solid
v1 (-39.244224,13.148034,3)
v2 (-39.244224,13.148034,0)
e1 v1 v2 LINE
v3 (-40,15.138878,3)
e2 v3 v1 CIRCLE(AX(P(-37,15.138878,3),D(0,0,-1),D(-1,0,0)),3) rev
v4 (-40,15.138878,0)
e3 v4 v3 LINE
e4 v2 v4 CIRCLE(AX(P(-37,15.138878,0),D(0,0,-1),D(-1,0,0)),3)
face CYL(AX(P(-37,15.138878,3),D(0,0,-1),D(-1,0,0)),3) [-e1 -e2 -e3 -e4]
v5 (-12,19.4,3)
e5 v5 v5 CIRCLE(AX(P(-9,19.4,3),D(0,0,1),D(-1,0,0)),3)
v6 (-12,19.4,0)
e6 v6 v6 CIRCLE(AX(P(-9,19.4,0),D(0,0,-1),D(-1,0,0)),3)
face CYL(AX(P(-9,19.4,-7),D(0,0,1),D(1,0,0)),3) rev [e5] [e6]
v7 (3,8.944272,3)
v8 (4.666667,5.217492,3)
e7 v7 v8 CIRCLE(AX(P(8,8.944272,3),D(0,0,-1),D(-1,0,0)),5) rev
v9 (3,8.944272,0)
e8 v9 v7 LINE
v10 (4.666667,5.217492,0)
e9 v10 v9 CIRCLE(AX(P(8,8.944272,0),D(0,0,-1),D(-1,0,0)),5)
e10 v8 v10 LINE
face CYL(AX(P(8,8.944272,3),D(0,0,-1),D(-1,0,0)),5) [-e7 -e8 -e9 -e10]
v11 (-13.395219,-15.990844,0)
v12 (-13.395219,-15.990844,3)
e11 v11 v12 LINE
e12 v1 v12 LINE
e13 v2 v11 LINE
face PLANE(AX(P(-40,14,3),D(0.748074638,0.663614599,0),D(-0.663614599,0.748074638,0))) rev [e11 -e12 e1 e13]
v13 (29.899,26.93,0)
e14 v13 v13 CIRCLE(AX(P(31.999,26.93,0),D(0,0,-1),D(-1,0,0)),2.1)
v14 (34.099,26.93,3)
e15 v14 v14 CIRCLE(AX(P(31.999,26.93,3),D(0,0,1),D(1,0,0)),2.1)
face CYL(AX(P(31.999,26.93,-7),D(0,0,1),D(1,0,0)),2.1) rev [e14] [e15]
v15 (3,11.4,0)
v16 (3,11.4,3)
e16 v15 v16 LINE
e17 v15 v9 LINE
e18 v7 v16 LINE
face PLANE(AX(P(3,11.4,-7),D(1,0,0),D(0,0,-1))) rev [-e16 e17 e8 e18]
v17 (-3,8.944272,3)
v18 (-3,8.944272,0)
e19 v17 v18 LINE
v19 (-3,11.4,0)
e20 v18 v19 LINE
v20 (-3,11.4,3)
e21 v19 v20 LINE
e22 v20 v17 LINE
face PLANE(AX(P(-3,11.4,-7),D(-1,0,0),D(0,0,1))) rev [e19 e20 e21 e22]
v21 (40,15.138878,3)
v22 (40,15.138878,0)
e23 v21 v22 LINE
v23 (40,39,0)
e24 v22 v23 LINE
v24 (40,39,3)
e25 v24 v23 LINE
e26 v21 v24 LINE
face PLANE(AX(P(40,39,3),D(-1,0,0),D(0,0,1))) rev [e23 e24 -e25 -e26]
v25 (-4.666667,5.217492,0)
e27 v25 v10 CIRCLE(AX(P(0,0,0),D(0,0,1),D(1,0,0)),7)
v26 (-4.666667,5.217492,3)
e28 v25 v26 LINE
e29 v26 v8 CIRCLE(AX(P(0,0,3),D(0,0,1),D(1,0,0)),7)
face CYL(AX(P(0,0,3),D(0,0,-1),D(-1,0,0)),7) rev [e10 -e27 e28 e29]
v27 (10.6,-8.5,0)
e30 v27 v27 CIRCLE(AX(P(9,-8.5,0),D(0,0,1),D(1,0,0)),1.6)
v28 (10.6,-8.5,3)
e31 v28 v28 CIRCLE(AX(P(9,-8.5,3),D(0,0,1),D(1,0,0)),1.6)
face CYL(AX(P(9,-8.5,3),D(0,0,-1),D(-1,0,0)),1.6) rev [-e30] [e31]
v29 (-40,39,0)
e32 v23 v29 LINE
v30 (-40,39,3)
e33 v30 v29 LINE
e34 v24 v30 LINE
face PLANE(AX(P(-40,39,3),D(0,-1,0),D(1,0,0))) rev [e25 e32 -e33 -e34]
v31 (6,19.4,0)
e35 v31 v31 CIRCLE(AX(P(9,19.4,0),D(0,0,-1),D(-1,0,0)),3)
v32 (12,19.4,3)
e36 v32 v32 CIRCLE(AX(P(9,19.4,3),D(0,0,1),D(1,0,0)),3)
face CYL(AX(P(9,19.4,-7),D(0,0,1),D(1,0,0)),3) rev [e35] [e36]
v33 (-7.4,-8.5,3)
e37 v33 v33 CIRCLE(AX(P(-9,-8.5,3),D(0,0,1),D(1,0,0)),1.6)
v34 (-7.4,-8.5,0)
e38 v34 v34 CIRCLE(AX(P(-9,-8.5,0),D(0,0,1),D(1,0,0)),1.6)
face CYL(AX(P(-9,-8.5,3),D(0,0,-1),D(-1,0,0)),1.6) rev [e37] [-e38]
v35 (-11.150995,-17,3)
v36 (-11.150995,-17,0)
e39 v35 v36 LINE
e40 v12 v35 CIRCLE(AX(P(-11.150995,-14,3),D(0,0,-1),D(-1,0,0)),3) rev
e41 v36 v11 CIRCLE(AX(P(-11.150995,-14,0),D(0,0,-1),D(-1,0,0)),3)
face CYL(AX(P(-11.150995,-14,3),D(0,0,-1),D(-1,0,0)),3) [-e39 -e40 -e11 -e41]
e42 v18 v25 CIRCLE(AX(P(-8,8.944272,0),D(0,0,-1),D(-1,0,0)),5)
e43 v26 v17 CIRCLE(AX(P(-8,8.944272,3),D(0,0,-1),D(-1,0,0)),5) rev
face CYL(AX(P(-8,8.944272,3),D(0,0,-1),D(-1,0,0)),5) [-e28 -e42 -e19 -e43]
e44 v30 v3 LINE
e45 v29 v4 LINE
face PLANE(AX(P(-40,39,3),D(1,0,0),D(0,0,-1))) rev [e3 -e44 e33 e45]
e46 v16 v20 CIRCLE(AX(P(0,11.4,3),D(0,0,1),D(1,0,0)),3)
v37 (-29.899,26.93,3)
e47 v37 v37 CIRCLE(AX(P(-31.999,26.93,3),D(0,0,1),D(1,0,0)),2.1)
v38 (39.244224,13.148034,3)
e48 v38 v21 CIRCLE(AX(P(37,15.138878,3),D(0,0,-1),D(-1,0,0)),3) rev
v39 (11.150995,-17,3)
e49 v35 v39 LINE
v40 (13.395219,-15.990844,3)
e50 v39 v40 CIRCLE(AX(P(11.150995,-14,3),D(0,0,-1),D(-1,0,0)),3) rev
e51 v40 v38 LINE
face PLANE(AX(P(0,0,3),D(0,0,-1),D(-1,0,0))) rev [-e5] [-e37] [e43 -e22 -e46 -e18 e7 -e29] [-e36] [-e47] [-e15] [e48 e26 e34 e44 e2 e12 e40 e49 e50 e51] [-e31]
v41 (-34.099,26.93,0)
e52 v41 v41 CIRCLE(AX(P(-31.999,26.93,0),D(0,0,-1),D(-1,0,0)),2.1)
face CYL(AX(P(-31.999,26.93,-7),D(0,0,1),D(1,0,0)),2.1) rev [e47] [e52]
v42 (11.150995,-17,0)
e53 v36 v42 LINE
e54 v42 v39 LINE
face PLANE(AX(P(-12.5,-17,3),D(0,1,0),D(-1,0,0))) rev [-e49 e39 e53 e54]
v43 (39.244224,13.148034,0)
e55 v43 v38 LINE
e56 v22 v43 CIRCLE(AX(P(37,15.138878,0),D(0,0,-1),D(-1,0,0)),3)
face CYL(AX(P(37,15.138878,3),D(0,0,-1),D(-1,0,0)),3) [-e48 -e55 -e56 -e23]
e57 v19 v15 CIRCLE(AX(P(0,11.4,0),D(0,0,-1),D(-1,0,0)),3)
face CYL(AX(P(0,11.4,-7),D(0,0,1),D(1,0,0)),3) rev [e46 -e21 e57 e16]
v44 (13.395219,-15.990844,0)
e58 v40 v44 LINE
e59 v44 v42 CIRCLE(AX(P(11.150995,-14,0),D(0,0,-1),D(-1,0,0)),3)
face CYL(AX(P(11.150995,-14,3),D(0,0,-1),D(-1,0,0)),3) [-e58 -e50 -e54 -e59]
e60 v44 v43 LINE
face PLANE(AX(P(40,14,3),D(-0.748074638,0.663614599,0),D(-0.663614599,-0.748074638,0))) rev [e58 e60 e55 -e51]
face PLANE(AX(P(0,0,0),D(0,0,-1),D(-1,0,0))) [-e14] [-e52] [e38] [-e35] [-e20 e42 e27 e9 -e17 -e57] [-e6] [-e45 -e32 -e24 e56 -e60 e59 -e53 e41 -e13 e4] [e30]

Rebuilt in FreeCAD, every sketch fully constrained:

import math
import FreeCAD as App
import Part
import Sketcher
from FreeCAD import Vector


def edges_at(feature, points):
    """Names of the edges that pass closest to the given points."""
    edges = feature.Shape.Edges
    near = lambda p: min(range(len(edges)), key=lambda i: edges[i].distToShape(Part.Vertex(*p))[0])
    return sorted({f"Edge{near(p) + 1}" for p in points})


def add_polygon(sketch, points):
    """Adds a closed chain of lines whose ends are joined by coincident constraints."""
    first, n = sketch.GeometryCount, len(points)
    for a, b in zip(points, points[1:] + points[:1]):
        sketch.addGeometry(Part.LineSegment(App.Vector(*a, 0), App.Vector(*b, 0)), False)
    for i in range(n):
        sketch.addConstraint(Sketcher.Constraint("Coincident", first + i, 2, first + (i + 1) % n, 1))

doc = App.newDocument("Part")
params = doc.addObject("Spreadsheet::Sheet", "Params")
for row, (alias, value) in enumerate([
    ("sketch1_diameter", "14 mm"),
    ("sketch1_diameter2", "3.2 mm"),
    ("sketch1_width", "25 mm"),
    ("sketch1_width2", "80 mm"),
    ("pad1_length", "3 mm"),
    ("sketch2_diameter", "4.2 mm"),
    ("pocket1_length", "10 mm"),
    ("fillet_radius", "3 mm"),
    ("sketch3_diameter", "6 mm"),
    ("sketch3_radius", "7 mm"),
    ("pocket2_length", "10 mm"),
    ("fillet2_radius", "5 mm"),
], start=1):
    params.set(f"A{row}", alias)
    params.set(f"B{row}", "=" + value)
    params.setAlias(f"B{row}", alias)

body = doc.addObject("PartDesign::Body", "Body")

# Sketch on XY plane
sketch1 = doc.addObject("Sketcher::SketchObject", "Sketch")
body.addObject(sketch1)
sketch1.AttachmentSupport = (doc.XY_Plane, [""])
sketch1.MapMode = "FlatFace"
add_polygon(sketch1, [(-12.5, -17), (12.5, -17), (40, 14), (40, 39), (-40, 39), (-40, 14)])  # lines 0-5
sketch1.addGeometry(Part.Circle(Vector(-9, -8.5, 0), Vector(0, 0, 1), 1.6), False)  # 6
sketch1.addGeometry(Part.Circle(Vector(9, -8.5, 0), Vector(0, 0, 1), 1.6), False)  # 7
sketch1.addGeometry(Part.Circle(Vector(0, 0, 0), Vector(0, 0, 1), 7), False)  # 8
sketch1.addConstraint(Sketcher.Constraint("Horizontal", 0))
sketch1.addConstraint(Sketcher.Constraint("Vertical", 2))
sketch1.addConstraint(Sketcher.Constraint("Horizontal", 3))
sketch1.addConstraint(Sketcher.Constraint("Vertical", 4))
sketch1.addConstraint(Sketcher.Constraint("Coincident", 8, 3, -1, 1))
sketch1.addConstraint(Sketcher.Constraint("Equal", 6, 7))
sketch1.addConstraint(Sketcher.Constraint("Symmetric", 6, 3, 7, 3, -2))
sketch1.addConstraint(Sketcher.Constraint("Symmetric", 1, 2, 4, 2, -2))
sketch1.addConstraint(Sketcher.Constraint("Equal", 0, 2))
sketch1.addConstraint(Sketcher.Constraint("Equal", 1, 5))
sketch1.addConstraint(Sketcher.Constraint("Diameter", 8, 14.0))
sketch1.addConstraint(Sketcher.Constraint("Diameter", 6, 3.2))
sketch1.addConstraint(Sketcher.Constraint("DistanceX", 0, 1, 0, 2, 25.0))
sketch1.addConstraint(Sketcher.Constraint("DistanceX", 3, 2, 3, 1, 80.0))
sketch1.addConstraint(Sketcher.Constraint("DistanceX", 6, 3, -1, 1, 9.0))
sketch1.addConstraint(Sketcher.Constraint("DistanceY", 0, 2, -1, 1, 17.0))
sketch1.addConstraint(Sketcher.Constraint("DistanceY", -1, 1, 1, 2, 14.0))
sketch1.addConstraint(Sketcher.Constraint("DistanceY", 6, 3, -1, 1, 8.5))
sketch1.setExpression("Constraints[16]", "Params.sketch1_diameter")
sketch1.setExpression("Constraints[17]", "Params.sketch1_diameter2")
sketch1.setExpression("Constraints[18]", "Params.sketch1_width")
sketch1.setExpression("Constraints[19]", "Params.sketch1_width2")
pad1 = doc.addObject("PartDesign::Pad", "Pad")
body.addObject(pad1)
pad1.Profile = sketch1
pad1.setExpression("Length", "Params.pad1_length")

# Sketch on XY plane
sketch2 = doc.addObject("Sketcher::SketchObject", "Sketch001")
body.addObject(sketch2)
sketch2.AttachmentSupport = (doc.XY_Plane, [""])
sketch2.MapMode = "FlatFace"
sketch2.AttachmentOffset = App.Placement(Vector(0, 0, 3), App.Rotation())
sketch2.addGeometry(Part.Circle(Vector(32, 26.9, 0), Vector(0, 0, 1), 2.1), False)
sketch2.addGeometry(Part.Circle(Vector(-32, 26.9, 0), Vector(0, 0, 1), 2.1), False)
sketch2.addConstraint(Sketcher.Constraint("Equal", 0, 1))
sketch2.addConstraint(Sketcher.Constraint("Symmetric", 0, 3, 1, 3, -2))
sketch2.addConstraint(Sketcher.Constraint("Diameter", 0, 4.2))
sketch2.addConstraint(Sketcher.Constraint("DistanceY", -1, 1, 0, 3, 26.93))
sketch2.addConstraint(Sketcher.Constraint("DistanceX", -1, 1, 0, 3, 31.999))
sketch2.setExpression("Constraints[2]", "Params.sketch2_diameter")
pocket1 = doc.addObject("PartDesign::Pocket", "Pocket")
body.addObject(pocket1)
pocket1.Profile = sketch2
pocket1.setExpression("Length", "Params.pocket1_length")
doc.recompute()

fillet = doc.addObject("PartDesign::Fillet", "Fillet")
body.addObject(fillet)
fillet.Base = (pocket1, edges_at(pocket1, [
    (-40, 14, 1.5),
    (40, 14, 1.5),
    (12.5, -17, 1.5),
    (-12.5, -17, 1.5),
]))
fillet.setExpression("Radius", "Params.fillet_radius")

# Sketch on XY plane
sketch3 = doc.addObject("Sketcher::SketchObject", "Sketch002")
body.addObject(sketch3)
sketch3.AttachmentSupport = (doc.XY_Plane, [""])
sketch3.MapMode = "FlatFace"
sketch3.AttachmentOffset = App.Placement(Vector(0, 0, 3), App.Rotation())
sketch3.addGeometry(Part.Circle(Vector(9, 19.4, 0), Vector(0, 0, 1), 3), False)
sketch3.addGeometry(Part.Circle(Vector(-9, 19.4, 0), Vector(0, 0, 1), 3), False)
sketch3.addGeometry(Part.LineSegment(Vector(-3, 11.4, 0), Vector(-3, 6.3, 0)), False)
sketch3.addGeometry(Part.ArcOfCircle(Part.Circle(Vector(0, 0, 0), Vector(0, 0, 1), 7), math.radians(65), math.radians(115)), False)
sketch3.addGeometry(Part.LineSegment(Vector(3, 6.3, 0), Vector(3, 11.4, 0)), False)
sketch3.addGeometry(Part.ArcOfCircle(Part.Circle(Vector(0, 11.4, 0), Vector(0, 0, 1), 3), math.radians(0), math.radians(180)), False)
sketch3.addConstraint(Sketcher.Constraint("Coincident", 2, 2, 3, 2))
sketch3.addConstraint(Sketcher.Constraint("Coincident", 3, 1, 4, 1))
sketch3.addConstraint(Sketcher.Constraint("Tangent", 4, 2, 5, 1))
sketch3.addConstraint(Sketcher.Constraint("Tangent", 5, 2, 2, 1))
sketch3.addConstraint(Sketcher.Constraint("Vertical", 2))
sketch3.addConstraint(Sketcher.Constraint("Vertical", 4))
sketch3.addConstraint(Sketcher.Constraint("Coincident", 3, 3, -1, 1))
sketch3.addConstraint(Sketcher.Constraint("Equal", 0, 1))
sketch3.addConstraint(Sketcher.Constraint("Equal", 1, 5))
sketch3.addConstraint(Sketcher.Constraint("Symmetric", 0, 3, 1, 3, -2))
sketch3.addConstraint(Sketcher.Constraint("PointOnObject", 5, 3, -2))
sketch3.addConstraint(Sketcher.Constraint("Diameter", 0, 6.0))
sketch3.addConstraint(Sketcher.Constraint("Radius", 3, 7.0))
sketch3.addConstraint(Sketcher.Constraint("DistanceX", -1, 1, 0, 3, 9.0))
sketch3.addConstraint(Sketcher.Constraint("DistanceY", 5, 3, 0, 3, 8.0))
sketch3.addConstraint(Sketcher.Constraint("DistanceY", -1, 1, 0, 3, 19.4))
sketch3.setExpression("Constraints[11]", "Params.sketch3_diameter")
sketch3.setExpression("Constraints[12]", "Params.sketch3_radius")
pocket2 = doc.addObject("PartDesign::Pocket", "Pocket001")
body.addObject(pocket2)
pocket2.Profile = sketch3
pocket2.setExpression("Length", "Params.pocket2_length")
doc.recompute()

fillet2 = doc.addObject("PartDesign::Fillet", "Fillet001")
body.addObject(fillet2)
fillet2.Base = (pocket2, edges_at(pocket2, [(-3, 6.325, 1.5), (3, 6.325, 1.5)]))
fillet2.setExpression("Radius", "Params.fillet2_radius")

doc.recompute()
